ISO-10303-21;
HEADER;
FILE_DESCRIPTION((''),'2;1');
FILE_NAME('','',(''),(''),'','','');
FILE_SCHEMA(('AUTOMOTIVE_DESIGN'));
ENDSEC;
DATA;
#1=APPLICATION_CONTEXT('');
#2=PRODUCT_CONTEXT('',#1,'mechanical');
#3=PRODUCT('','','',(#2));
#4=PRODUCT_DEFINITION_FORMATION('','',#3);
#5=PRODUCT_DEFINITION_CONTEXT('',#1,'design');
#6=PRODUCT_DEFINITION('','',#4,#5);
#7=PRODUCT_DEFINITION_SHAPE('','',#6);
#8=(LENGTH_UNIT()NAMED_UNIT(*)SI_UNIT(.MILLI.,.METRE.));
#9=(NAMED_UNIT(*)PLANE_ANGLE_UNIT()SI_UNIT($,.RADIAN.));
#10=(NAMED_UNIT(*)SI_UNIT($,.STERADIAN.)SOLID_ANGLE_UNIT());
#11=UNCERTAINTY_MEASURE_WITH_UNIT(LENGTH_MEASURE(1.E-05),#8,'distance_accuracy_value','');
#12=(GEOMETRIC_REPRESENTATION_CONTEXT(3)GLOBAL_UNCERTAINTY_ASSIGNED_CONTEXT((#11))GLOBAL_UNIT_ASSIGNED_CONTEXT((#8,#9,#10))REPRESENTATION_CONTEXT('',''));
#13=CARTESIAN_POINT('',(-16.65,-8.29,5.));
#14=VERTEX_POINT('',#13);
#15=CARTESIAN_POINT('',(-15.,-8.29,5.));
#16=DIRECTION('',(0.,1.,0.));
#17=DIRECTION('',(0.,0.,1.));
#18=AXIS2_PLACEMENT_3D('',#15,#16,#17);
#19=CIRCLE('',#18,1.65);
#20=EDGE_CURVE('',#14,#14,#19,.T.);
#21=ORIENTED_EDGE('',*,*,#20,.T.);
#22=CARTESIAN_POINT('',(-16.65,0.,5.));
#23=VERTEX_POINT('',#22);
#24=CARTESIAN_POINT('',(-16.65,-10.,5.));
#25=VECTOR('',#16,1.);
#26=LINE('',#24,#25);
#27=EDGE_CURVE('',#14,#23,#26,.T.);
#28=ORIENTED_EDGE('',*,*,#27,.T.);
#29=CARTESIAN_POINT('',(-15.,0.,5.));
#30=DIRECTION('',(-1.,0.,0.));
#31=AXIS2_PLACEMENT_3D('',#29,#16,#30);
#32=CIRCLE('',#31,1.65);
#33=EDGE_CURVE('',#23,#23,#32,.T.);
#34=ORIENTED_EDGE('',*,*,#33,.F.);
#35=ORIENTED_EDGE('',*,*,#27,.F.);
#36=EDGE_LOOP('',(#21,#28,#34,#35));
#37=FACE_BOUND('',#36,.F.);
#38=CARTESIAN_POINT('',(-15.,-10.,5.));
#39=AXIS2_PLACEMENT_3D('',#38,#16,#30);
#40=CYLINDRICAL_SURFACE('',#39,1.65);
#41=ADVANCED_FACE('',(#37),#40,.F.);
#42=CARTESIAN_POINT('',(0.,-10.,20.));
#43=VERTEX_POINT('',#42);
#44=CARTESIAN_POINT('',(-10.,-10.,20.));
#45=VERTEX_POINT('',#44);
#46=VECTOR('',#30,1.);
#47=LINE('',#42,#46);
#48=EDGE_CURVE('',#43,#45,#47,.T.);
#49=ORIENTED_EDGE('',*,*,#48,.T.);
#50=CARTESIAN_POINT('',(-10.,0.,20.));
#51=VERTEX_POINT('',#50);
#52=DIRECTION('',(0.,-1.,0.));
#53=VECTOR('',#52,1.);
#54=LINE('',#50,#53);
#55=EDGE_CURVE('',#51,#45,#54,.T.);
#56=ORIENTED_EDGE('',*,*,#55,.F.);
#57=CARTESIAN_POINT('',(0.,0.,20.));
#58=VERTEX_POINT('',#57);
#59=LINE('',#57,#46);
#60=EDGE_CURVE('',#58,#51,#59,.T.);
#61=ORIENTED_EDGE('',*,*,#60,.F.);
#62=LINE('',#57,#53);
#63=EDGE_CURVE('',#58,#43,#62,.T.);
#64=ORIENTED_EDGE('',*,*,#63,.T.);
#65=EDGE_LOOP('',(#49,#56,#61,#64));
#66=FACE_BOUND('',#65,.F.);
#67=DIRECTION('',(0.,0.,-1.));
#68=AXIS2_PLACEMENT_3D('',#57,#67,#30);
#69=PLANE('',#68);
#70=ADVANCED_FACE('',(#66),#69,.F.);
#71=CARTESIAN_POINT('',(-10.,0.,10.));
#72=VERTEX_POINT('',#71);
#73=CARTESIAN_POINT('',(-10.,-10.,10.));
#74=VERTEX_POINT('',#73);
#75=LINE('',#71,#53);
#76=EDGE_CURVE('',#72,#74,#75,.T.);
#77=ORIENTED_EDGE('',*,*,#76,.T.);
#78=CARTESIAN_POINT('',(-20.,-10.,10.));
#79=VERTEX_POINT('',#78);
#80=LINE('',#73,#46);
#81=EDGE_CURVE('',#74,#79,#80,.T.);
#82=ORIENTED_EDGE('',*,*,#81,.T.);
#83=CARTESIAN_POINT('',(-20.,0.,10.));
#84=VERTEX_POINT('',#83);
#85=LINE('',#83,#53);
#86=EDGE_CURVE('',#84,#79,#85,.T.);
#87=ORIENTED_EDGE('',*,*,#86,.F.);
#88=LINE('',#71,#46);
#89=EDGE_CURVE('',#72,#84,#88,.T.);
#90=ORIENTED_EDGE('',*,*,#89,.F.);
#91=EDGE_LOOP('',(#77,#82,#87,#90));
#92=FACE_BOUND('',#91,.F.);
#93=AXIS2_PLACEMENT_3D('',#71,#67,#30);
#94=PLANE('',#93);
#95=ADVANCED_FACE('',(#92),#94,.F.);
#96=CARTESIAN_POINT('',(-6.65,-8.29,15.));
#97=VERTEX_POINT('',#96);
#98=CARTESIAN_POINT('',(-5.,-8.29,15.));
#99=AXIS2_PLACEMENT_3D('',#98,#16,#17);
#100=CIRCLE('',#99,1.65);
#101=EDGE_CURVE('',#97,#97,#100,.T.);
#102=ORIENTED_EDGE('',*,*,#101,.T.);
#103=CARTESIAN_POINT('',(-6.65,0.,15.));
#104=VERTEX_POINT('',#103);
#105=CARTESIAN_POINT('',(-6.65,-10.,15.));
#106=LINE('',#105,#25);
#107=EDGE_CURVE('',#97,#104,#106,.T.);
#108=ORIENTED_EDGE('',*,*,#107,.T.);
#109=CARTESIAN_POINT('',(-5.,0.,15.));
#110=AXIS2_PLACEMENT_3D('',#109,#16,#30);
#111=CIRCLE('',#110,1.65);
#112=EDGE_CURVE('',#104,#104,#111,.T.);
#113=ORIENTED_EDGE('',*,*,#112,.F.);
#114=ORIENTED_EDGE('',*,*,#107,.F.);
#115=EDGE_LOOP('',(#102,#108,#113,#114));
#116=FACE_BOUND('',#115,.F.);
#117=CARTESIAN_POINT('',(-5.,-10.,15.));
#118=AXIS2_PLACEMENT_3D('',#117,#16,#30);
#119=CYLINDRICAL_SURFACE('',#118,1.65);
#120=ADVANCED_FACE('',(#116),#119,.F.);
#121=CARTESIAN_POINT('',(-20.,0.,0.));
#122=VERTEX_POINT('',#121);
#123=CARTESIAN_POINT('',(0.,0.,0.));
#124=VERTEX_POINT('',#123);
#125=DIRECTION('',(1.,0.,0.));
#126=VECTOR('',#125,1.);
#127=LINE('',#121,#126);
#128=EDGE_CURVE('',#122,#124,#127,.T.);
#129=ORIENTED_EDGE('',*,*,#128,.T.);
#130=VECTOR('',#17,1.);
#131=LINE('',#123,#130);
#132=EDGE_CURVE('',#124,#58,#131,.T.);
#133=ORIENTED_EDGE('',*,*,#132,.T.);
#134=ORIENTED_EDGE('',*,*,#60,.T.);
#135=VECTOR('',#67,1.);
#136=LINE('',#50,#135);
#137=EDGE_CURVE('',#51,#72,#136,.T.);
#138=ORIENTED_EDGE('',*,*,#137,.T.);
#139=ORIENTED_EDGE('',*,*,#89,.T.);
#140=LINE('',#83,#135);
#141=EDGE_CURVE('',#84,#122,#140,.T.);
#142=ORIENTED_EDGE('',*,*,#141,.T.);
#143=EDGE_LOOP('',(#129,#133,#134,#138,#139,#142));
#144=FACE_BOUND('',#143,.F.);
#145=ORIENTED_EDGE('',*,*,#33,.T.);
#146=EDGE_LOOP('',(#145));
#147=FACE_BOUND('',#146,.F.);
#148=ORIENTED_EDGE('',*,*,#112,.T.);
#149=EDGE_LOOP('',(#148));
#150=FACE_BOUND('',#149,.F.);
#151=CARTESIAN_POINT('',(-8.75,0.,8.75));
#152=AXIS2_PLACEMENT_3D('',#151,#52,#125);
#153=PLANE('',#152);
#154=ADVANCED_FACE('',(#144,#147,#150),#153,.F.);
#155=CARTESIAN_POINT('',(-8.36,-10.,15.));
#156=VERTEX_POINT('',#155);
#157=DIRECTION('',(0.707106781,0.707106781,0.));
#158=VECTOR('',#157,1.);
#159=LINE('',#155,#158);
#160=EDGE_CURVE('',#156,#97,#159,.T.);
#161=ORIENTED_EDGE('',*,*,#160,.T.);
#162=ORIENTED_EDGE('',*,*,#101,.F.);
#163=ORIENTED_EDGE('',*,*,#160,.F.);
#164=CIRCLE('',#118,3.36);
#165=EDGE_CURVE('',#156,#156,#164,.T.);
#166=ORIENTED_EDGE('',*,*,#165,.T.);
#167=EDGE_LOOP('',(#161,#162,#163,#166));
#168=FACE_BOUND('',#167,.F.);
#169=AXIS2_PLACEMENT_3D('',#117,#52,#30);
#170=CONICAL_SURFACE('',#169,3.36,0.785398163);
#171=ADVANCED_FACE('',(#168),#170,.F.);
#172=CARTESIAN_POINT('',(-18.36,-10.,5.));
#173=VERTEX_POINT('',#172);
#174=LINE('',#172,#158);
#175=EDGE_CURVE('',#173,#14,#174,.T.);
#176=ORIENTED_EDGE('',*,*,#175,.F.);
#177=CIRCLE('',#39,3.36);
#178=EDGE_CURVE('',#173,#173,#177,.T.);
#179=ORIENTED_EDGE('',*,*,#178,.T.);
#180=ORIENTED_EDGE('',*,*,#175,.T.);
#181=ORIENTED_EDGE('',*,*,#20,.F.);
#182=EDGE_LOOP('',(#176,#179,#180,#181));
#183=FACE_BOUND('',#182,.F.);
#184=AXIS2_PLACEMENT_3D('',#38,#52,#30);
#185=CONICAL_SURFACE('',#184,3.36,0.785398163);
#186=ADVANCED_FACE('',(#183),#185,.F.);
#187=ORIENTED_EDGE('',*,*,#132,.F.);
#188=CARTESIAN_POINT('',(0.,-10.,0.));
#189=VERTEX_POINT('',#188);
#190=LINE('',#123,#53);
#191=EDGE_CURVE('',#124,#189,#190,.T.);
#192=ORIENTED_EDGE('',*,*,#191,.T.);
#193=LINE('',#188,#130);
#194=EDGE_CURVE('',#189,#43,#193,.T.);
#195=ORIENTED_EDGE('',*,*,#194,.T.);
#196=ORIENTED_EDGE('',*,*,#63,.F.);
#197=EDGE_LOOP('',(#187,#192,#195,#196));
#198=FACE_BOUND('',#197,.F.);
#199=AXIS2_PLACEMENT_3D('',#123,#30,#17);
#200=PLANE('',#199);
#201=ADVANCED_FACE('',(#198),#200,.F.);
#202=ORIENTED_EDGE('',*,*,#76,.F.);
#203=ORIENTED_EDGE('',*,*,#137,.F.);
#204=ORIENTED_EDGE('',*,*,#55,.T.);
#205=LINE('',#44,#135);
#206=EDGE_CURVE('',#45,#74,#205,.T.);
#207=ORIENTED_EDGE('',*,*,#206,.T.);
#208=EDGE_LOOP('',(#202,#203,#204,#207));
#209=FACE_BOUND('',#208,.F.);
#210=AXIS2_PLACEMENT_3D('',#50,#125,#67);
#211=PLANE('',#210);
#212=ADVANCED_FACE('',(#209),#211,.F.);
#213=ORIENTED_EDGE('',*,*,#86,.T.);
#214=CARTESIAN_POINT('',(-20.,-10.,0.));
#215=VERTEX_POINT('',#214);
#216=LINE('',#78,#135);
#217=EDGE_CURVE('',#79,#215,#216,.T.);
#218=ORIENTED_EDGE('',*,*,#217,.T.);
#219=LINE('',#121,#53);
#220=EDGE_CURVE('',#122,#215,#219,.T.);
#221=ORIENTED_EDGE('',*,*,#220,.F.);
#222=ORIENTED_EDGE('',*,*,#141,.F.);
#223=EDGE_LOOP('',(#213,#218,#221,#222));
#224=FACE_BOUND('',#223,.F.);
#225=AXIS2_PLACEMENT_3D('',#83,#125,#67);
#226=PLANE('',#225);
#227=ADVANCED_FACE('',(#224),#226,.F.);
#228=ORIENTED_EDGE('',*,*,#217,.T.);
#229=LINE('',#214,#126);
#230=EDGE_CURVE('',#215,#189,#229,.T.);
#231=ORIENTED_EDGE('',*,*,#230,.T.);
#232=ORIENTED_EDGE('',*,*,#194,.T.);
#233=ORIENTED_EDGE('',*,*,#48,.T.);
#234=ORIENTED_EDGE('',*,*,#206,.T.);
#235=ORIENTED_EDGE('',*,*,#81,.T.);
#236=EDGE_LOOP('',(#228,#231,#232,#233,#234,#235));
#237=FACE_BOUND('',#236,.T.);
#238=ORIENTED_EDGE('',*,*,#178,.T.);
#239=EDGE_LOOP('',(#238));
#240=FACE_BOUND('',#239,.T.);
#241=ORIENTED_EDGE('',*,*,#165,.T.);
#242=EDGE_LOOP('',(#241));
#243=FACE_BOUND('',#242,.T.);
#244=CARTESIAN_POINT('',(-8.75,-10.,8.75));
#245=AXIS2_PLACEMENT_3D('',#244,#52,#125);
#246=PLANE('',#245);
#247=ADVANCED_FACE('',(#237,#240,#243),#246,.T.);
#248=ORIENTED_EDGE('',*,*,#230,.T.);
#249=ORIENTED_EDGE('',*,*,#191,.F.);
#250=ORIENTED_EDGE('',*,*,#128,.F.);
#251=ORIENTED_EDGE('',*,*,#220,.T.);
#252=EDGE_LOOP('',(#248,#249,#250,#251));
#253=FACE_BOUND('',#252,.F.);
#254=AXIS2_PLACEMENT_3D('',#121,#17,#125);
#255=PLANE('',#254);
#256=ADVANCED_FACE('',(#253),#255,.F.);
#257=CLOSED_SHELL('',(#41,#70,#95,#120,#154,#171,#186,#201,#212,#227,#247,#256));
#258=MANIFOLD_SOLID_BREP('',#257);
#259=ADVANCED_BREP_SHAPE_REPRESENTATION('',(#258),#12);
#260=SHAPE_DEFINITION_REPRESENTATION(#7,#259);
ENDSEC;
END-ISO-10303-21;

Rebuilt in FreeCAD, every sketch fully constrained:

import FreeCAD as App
import Part
import Sketcher
from FreeCAD import Vector
Q = App.Units.Quantity

doc = App.newDocument("Part")
body = doc.addObject("PartDesign::Body", "Body")

# Sketch on XZ plane
sketch1 = doc.addObject("Sketcher::SketchObject", "Sketch")
body.addObject(sketch1)
sketch1.AttachmentSupport = (doc.XZ_Plane, [""])
sketch1.MapMode = "FlatFace"
sketch1.addGeometry([
    Part.LineSegment(Vector(0, 20, 0), Vector(-10, 20, 0)),  # 0
    Part.LineSegment(Vector(-10, 20, 0), Vector(-10, 10, 0)),  # 1
    Part.LineSegment(Vector(-10, 10, 0), Vector(-20, 10, 0)),  # 2
    Part.LineSegment(Vector(-20, 10, 0), Vector(-20, 0, 0)),  # 3
    Part.LineSegment(Vector(-20, 0, 0), Vector(0, 0, 0)),  # 4
    Part.LineSegment(Vector(0, 0, 0), Vector(0, 20, 0)),  # 5
], False)
sketch1.addConstraint([
    Sketcher.Constraint("Coincident", 0, 2, 1, 1),
    Sketcher.Constraint("Coincident", 1, 2, 2, 1),
    Sketcher.Constraint("Coincident", 2, 2, 3, 1),
    Sketcher.Constraint("Coincident", 3, 2, 4, 1),
    Sketcher.Constraint("Coincident", 4, 2, 5, 1),
    Sketcher.Constraint("Coincident", 5, 2, 0, 1),
    Sketcher.Constraint("Horizontal", 0),
    Sketcher.Constraint("Vertical", 1),
    Sketcher.Constraint("Horizontal", 2),
    Sketcher.Constraint("Vertical", 3),
    Sketcher.Constraint("Horizontal", 4),
    Sketcher.Constraint("Vertical", 5),
    Sketcher.Constraint("Coincident", 4, 2, -1, 1),
    Sketcher.Constraint("Equal", 0, 2),
    Sketcher.Constraint("Equal", 2, 1),
    Sketcher.Constraint("Equal", 1, 3),
    Sketcher.Constraint("DistanceX", 0, 2, 0, 1, Q("10 mm")),
])
pad1 = doc.addObject("PartDesign::Pad", "Pad")
body.addObject(pad1)
pad1.Profile = sketch1
pad1.Length = 10

# Sketch on XZ plane
sketch2 = doc.addObject("Sketcher::SketchObject", "Sketch001")
body.addObject(sketch2)
sketch2.AttachmentSupport = (doc.XZ_Plane, [""])
sketch2.MapMode = "FlatFace"
sketch2.AttachmentOffset = App.Placement(Vector(0, 0, 10), App.Rotation())
sketch2.addGeometry([
    Part.Circle(Vector(-5, 15, 0), Vector(0, 0, 1), 1.65),
    Part.Circle(Vector(-15, 5, 0), Vector(0, 0, 1), 1.65),
], False)
sketch2.addConstraint([
    Sketcher.Constraint("Equal", 0, 1),
    Sketcher.Constraint("Diameter", 0, Q("3.3 mm")),
    Sketcher.Constraint("DistanceX", 0, 3, -1, 1, Q("5 mm")),
    Sketcher.Constraint("DistanceY", -1, 1, 0, 3, Q("15 mm")),
    Sketcher.Constraint("DistanceX", 1, 3, -1, 1, Q("15 mm")),
    Sketcher.Constraint("DistanceY", -1, 1, 1, 3, Q("5 mm")),
])
doc.recompute()
hole = doc.addObject("PartDesign::Hole", "Hole")
body.addObject(hole)
hole.Profile = sketch2
hole.ThreadType = "None"
hole.Diameter = 3.3
hole.DepthType = "ThroughAll"
hole.HoleCutType = "Countersink"
hole.HoleCutDiameter = 6.72
hole.HoleCutCountersinkAngle = 90

doc.recompute()
